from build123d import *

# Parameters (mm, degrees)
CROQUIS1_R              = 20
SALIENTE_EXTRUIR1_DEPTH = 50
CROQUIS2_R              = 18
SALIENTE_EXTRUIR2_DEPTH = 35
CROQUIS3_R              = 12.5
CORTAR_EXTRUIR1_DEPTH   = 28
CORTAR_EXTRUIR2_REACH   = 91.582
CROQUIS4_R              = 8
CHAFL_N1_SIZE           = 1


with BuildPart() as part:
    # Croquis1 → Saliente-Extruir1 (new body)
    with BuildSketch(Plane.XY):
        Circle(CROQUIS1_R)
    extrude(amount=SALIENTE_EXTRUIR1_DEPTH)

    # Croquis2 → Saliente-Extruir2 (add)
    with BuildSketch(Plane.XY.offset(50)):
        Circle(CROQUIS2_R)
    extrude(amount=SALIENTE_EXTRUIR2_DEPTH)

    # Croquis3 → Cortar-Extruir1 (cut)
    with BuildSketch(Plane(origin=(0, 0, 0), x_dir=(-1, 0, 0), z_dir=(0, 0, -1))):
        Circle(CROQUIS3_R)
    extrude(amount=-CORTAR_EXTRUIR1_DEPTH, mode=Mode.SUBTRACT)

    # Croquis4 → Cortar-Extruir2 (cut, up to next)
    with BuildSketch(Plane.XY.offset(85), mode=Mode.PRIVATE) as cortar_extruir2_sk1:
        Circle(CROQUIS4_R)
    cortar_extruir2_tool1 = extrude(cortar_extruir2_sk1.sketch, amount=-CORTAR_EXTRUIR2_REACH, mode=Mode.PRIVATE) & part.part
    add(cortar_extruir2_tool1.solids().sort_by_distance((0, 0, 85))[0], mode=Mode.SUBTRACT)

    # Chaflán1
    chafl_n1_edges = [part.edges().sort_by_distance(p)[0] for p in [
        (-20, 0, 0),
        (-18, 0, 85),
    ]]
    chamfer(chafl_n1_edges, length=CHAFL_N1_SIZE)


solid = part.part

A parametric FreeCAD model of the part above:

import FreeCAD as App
import Part
import Sketcher
from FreeCAD import Vector
Q = App.Units.Quantity


def edges_at(feature, points):
    """Names of the edges that pass closest to the given points."""
    edges = feature.Shape.Edges
    near = lambda p: min(range(len(edges)), key=lambda i: edges[i].distToShape(Part.Vertex(*p))[0])
    return sorted({f"Edge{near(p) + 1}" for p in points})

doc = App.newDocument("Part")
params = doc.addObject("Spreadsheet::Sheet", "Params")
for row, (alias, value) in enumerate([
    ("sketch1_diameter", "40 mm"),
    ("pad1_length", "50 mm"),
    ("sketch2_diameter", "36 mm"),
    ("pad2_length", "35 mm"),
    ("sketch3_diameter", "25 mm"),
    ("pocket1_length", "28 mm"),
    ("sketch4_diameter", "16 mm"),
    ("chamfer_size", "1 mm"),
], start=1):
    params.set(f"A{row}", alias)
    params.set(f"B{row}", "=" + value)
    params.setAlias(f"B{row}", alias)

body = doc.addObject("PartDesign::Body", "Body")

# Sketch on XY plane
sketch1 = body.newObject("Sketcher::SketchObject", "Sketch")
sketch1.AttachmentSupport = (doc.getObject("XY_Plane"), [""])
sketch1.MapMode = "FlatFace"
sketch1.addGeometry(Part.Circle(Vector(0, 0, 0), Vector(0, 0, 1), 20), False)
sketch1.addConstraint(Sketcher.Constraint("Coincident", 0, 3, -1, 1))
sketch1.addConstraint(Sketcher.Constraint("Diameter", 0, Q("40 mm")))
sketch1.setExpression("Constraints[1]", "Params.sketch1_diameter")
pad1 = body.newObject("PartDesign::Pad", "Pad")
pad1.Profile = sketch1
pad1.setExpression("Length", "Params.pad1_length")

# Sketch on XY plane
sketch2 = body.newObject("Sketcher::SketchObject", "Sketch001")
sketch2.AttachmentSupport = (doc.getObject("XY_Plane"), [""])
sketch2.MapMode = "FlatFace"
sketch2.AttachmentOffset = App.Placement(Vector(0, 0, 50), App.Rotation())
sketch2.addGeometry(Part.Circle(Vector(0, 0, 0), Vector(0, 0, 1), 18), False)
sketch2.addConstraint(Sketcher.Constraint("Coincident", 0, 3, -1, 1))
sketch2.addConstraint(Sketcher.Constraint("Diameter", 0, Q("36 mm")))
sketch2.setExpression("Constraints[1]", "Params.sketch2_diameter")
pad2 = body.newObject("PartDesign::Pad", "Pad001")
pad2.Profile = sketch2
pad2.setExpression("Length", "Params.pad2_length")

# Sketch on XY plane
sketch3 = body.newObject("Sketcher::SketchObject", "Sketch002")
sketch3.AttachmentSupport = (doc.getObject("XY_Plane"), [""])
sketch3.MapMode = "FlatFace"
sketch3.addGeometry(Part.Circle(Vector(0, 0, 0), Vector(0, 0, 1), 12), False)
sketch3.addConstraint(Sketcher.Constraint("Coincident", 0, 3, -1, 1))
sketch3.addConstraint(Sketcher.Constraint("Diameter", 0, Q("25 mm")))
sketch3.setExpression("Constraints[1]", "Params.sketch3_diameter")
pocket1 = body.newObject("PartDesign::Pocket", "Pocket")
pocket1.Profile = sketch3
pocket1.setExpression("Length", "Params.pocket1_length")
pocket1.Reversed = True

# Sketch on XY plane
sketch4 = body.newObject("Sketcher::SketchObject", "Sketch003")
sketch4.AttachmentSupport = (doc.getObject("XY_Plane"), [""])
sketch4.MapMode = "FlatFace"
sketch4.AttachmentOffset = App.Placement(Vector(0, 0, 85), App.Rotation())
sketch4.addGeometry(Part.Circle(Vector(0, 0, 0), Vector(0, 0, 1), 8), False)
sketch4.addConstraint(Sketcher.Constraint("Coincident", 0, 3, -1, 1))
sketch4.addConstraint(Sketcher.Constraint("Diameter", 0, Q("16 mm")))
sketch4.setExpression("Constraints[1]", "Params.sketch4_diameter")
pocket2 = body.newObject("PartDesign::Pocket", "Pocket001")
pocket2.Profile = sketch4
pocket2.Type = "UpToFirst"
doc.recompute()

chamfer = body.newObject("PartDesign::Chamfer", "Chamfer")
chamfer.Base = (pocket2, edges_at(pocket2, [(-20, 0, 0), (-18, 0, 85)]))
chamfer.setExpression("Size", "Params.chamfer_size")

doc.recompute()
